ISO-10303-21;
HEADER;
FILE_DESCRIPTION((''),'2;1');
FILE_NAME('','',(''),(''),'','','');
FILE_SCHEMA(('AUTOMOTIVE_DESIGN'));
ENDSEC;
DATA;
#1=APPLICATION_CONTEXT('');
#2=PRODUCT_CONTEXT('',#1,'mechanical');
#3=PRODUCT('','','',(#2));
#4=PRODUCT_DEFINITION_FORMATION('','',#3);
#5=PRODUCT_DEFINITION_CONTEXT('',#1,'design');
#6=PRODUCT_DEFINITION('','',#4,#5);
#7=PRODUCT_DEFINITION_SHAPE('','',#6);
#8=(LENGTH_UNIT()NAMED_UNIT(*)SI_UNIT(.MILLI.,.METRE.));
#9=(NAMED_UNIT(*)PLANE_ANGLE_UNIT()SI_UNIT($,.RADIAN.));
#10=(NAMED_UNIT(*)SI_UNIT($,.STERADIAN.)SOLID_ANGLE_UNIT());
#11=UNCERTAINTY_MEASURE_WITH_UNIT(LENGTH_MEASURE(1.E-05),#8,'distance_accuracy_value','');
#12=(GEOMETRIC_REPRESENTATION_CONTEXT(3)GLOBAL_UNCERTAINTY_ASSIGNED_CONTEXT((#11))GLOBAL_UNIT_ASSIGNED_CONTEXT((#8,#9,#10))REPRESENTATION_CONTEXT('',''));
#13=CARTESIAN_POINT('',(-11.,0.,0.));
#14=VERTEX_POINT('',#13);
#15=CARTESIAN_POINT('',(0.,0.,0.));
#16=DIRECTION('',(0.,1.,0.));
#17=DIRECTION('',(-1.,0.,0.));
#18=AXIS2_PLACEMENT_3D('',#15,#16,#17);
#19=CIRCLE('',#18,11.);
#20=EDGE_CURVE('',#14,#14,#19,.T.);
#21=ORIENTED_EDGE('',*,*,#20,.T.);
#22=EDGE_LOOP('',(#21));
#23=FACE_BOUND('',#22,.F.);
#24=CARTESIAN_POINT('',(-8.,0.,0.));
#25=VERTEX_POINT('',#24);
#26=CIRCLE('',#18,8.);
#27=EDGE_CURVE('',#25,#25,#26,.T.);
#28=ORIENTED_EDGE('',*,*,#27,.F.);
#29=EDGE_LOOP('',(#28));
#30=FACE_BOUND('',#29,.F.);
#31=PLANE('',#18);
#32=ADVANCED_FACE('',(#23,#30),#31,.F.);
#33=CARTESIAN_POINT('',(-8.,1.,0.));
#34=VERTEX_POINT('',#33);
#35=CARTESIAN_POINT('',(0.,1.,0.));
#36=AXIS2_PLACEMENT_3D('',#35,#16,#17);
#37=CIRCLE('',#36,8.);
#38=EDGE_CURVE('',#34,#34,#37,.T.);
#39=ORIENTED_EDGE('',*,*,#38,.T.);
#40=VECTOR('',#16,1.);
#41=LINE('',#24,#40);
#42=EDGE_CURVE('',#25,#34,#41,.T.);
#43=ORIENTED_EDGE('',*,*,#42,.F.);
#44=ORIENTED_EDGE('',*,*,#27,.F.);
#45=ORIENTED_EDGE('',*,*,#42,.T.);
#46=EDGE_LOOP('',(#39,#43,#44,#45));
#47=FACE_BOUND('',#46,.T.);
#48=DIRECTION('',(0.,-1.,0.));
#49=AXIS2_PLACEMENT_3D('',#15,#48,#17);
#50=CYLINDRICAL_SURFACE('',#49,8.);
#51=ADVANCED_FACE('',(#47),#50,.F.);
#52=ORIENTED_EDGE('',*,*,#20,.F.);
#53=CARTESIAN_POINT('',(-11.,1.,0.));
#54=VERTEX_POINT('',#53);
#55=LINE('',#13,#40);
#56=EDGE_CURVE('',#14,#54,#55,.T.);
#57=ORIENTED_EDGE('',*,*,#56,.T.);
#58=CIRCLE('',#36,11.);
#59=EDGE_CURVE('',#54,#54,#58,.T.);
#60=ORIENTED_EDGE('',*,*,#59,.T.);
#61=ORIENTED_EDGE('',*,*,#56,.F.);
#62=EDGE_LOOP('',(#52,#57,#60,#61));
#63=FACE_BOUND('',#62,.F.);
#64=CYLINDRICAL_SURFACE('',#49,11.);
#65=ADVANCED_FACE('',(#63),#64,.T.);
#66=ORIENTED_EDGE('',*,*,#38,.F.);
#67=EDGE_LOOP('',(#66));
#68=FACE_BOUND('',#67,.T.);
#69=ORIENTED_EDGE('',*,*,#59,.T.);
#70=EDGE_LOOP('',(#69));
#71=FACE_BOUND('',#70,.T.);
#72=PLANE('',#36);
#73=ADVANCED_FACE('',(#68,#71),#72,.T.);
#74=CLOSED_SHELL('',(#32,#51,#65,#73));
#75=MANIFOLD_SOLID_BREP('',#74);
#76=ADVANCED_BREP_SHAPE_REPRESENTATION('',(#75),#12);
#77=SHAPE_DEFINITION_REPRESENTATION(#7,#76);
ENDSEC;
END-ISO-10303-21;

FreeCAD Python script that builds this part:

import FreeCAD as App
import Part
import Sketcher
from FreeCAD import Vector
Q = App.Units.Quantity

doc = App.newDocument("Part")
params = doc.addObject("Spreadsheet::Sheet", "Params")
for row, (alias, value) in enumerate([
    ("sketch1_diameter", "22 mm"),
    ("sketch1_diameter2", "16 mm"),
    ("pad1_length", "1 mm"),
], start=1):
    params.set(f"A{row}", alias)
    params.set(f"B{row}", "=" + value)
    params.setAlias(f"B{row}", alias)

body = doc.addObject("PartDesign::Body", "Body")

sketch1 = doc.addObject("Sketcher::SketchObject", "Sketch")
body.addObject(sketch1)
sketch1.AttachmentSupport = (doc.XZ_Plane, [""])
sketch1.MapMode = "FlatFace"
sketch1.addGeometry([
    Part.Circle(Vector(0, 0, 0), Vector(0, 0, 1), 11),
    Part.Circle(Vector(0, 0, 0), Vector(0, 0, 1), 8),
], False)
sketch1.addConstraint([
    Sketcher.Constraint("Coincident", 0, 3, -1, 1),
    Sketcher.Constraint("Coincident", 1, 3, -1, 1),
    Sketcher.Constraint("Diameter", 0, Q("22 mm")),
    Sketcher.Constraint("Diameter", 1, Q("16 mm")),
])
sketch1.setExpression("Constraints[2]", "Params.sketch1_diameter")
sketch1.setExpression("Constraints[3]", "Params.sketch1_diameter2")
pad1 = doc.addObject("PartDesign::Pad", "Pad")
body.addObject(pad1)
pad1.Profile = sketch1
pad1.setExpression("Length", "Params.pad1_length")
pad1.Reversed = True

doc.recompute()
